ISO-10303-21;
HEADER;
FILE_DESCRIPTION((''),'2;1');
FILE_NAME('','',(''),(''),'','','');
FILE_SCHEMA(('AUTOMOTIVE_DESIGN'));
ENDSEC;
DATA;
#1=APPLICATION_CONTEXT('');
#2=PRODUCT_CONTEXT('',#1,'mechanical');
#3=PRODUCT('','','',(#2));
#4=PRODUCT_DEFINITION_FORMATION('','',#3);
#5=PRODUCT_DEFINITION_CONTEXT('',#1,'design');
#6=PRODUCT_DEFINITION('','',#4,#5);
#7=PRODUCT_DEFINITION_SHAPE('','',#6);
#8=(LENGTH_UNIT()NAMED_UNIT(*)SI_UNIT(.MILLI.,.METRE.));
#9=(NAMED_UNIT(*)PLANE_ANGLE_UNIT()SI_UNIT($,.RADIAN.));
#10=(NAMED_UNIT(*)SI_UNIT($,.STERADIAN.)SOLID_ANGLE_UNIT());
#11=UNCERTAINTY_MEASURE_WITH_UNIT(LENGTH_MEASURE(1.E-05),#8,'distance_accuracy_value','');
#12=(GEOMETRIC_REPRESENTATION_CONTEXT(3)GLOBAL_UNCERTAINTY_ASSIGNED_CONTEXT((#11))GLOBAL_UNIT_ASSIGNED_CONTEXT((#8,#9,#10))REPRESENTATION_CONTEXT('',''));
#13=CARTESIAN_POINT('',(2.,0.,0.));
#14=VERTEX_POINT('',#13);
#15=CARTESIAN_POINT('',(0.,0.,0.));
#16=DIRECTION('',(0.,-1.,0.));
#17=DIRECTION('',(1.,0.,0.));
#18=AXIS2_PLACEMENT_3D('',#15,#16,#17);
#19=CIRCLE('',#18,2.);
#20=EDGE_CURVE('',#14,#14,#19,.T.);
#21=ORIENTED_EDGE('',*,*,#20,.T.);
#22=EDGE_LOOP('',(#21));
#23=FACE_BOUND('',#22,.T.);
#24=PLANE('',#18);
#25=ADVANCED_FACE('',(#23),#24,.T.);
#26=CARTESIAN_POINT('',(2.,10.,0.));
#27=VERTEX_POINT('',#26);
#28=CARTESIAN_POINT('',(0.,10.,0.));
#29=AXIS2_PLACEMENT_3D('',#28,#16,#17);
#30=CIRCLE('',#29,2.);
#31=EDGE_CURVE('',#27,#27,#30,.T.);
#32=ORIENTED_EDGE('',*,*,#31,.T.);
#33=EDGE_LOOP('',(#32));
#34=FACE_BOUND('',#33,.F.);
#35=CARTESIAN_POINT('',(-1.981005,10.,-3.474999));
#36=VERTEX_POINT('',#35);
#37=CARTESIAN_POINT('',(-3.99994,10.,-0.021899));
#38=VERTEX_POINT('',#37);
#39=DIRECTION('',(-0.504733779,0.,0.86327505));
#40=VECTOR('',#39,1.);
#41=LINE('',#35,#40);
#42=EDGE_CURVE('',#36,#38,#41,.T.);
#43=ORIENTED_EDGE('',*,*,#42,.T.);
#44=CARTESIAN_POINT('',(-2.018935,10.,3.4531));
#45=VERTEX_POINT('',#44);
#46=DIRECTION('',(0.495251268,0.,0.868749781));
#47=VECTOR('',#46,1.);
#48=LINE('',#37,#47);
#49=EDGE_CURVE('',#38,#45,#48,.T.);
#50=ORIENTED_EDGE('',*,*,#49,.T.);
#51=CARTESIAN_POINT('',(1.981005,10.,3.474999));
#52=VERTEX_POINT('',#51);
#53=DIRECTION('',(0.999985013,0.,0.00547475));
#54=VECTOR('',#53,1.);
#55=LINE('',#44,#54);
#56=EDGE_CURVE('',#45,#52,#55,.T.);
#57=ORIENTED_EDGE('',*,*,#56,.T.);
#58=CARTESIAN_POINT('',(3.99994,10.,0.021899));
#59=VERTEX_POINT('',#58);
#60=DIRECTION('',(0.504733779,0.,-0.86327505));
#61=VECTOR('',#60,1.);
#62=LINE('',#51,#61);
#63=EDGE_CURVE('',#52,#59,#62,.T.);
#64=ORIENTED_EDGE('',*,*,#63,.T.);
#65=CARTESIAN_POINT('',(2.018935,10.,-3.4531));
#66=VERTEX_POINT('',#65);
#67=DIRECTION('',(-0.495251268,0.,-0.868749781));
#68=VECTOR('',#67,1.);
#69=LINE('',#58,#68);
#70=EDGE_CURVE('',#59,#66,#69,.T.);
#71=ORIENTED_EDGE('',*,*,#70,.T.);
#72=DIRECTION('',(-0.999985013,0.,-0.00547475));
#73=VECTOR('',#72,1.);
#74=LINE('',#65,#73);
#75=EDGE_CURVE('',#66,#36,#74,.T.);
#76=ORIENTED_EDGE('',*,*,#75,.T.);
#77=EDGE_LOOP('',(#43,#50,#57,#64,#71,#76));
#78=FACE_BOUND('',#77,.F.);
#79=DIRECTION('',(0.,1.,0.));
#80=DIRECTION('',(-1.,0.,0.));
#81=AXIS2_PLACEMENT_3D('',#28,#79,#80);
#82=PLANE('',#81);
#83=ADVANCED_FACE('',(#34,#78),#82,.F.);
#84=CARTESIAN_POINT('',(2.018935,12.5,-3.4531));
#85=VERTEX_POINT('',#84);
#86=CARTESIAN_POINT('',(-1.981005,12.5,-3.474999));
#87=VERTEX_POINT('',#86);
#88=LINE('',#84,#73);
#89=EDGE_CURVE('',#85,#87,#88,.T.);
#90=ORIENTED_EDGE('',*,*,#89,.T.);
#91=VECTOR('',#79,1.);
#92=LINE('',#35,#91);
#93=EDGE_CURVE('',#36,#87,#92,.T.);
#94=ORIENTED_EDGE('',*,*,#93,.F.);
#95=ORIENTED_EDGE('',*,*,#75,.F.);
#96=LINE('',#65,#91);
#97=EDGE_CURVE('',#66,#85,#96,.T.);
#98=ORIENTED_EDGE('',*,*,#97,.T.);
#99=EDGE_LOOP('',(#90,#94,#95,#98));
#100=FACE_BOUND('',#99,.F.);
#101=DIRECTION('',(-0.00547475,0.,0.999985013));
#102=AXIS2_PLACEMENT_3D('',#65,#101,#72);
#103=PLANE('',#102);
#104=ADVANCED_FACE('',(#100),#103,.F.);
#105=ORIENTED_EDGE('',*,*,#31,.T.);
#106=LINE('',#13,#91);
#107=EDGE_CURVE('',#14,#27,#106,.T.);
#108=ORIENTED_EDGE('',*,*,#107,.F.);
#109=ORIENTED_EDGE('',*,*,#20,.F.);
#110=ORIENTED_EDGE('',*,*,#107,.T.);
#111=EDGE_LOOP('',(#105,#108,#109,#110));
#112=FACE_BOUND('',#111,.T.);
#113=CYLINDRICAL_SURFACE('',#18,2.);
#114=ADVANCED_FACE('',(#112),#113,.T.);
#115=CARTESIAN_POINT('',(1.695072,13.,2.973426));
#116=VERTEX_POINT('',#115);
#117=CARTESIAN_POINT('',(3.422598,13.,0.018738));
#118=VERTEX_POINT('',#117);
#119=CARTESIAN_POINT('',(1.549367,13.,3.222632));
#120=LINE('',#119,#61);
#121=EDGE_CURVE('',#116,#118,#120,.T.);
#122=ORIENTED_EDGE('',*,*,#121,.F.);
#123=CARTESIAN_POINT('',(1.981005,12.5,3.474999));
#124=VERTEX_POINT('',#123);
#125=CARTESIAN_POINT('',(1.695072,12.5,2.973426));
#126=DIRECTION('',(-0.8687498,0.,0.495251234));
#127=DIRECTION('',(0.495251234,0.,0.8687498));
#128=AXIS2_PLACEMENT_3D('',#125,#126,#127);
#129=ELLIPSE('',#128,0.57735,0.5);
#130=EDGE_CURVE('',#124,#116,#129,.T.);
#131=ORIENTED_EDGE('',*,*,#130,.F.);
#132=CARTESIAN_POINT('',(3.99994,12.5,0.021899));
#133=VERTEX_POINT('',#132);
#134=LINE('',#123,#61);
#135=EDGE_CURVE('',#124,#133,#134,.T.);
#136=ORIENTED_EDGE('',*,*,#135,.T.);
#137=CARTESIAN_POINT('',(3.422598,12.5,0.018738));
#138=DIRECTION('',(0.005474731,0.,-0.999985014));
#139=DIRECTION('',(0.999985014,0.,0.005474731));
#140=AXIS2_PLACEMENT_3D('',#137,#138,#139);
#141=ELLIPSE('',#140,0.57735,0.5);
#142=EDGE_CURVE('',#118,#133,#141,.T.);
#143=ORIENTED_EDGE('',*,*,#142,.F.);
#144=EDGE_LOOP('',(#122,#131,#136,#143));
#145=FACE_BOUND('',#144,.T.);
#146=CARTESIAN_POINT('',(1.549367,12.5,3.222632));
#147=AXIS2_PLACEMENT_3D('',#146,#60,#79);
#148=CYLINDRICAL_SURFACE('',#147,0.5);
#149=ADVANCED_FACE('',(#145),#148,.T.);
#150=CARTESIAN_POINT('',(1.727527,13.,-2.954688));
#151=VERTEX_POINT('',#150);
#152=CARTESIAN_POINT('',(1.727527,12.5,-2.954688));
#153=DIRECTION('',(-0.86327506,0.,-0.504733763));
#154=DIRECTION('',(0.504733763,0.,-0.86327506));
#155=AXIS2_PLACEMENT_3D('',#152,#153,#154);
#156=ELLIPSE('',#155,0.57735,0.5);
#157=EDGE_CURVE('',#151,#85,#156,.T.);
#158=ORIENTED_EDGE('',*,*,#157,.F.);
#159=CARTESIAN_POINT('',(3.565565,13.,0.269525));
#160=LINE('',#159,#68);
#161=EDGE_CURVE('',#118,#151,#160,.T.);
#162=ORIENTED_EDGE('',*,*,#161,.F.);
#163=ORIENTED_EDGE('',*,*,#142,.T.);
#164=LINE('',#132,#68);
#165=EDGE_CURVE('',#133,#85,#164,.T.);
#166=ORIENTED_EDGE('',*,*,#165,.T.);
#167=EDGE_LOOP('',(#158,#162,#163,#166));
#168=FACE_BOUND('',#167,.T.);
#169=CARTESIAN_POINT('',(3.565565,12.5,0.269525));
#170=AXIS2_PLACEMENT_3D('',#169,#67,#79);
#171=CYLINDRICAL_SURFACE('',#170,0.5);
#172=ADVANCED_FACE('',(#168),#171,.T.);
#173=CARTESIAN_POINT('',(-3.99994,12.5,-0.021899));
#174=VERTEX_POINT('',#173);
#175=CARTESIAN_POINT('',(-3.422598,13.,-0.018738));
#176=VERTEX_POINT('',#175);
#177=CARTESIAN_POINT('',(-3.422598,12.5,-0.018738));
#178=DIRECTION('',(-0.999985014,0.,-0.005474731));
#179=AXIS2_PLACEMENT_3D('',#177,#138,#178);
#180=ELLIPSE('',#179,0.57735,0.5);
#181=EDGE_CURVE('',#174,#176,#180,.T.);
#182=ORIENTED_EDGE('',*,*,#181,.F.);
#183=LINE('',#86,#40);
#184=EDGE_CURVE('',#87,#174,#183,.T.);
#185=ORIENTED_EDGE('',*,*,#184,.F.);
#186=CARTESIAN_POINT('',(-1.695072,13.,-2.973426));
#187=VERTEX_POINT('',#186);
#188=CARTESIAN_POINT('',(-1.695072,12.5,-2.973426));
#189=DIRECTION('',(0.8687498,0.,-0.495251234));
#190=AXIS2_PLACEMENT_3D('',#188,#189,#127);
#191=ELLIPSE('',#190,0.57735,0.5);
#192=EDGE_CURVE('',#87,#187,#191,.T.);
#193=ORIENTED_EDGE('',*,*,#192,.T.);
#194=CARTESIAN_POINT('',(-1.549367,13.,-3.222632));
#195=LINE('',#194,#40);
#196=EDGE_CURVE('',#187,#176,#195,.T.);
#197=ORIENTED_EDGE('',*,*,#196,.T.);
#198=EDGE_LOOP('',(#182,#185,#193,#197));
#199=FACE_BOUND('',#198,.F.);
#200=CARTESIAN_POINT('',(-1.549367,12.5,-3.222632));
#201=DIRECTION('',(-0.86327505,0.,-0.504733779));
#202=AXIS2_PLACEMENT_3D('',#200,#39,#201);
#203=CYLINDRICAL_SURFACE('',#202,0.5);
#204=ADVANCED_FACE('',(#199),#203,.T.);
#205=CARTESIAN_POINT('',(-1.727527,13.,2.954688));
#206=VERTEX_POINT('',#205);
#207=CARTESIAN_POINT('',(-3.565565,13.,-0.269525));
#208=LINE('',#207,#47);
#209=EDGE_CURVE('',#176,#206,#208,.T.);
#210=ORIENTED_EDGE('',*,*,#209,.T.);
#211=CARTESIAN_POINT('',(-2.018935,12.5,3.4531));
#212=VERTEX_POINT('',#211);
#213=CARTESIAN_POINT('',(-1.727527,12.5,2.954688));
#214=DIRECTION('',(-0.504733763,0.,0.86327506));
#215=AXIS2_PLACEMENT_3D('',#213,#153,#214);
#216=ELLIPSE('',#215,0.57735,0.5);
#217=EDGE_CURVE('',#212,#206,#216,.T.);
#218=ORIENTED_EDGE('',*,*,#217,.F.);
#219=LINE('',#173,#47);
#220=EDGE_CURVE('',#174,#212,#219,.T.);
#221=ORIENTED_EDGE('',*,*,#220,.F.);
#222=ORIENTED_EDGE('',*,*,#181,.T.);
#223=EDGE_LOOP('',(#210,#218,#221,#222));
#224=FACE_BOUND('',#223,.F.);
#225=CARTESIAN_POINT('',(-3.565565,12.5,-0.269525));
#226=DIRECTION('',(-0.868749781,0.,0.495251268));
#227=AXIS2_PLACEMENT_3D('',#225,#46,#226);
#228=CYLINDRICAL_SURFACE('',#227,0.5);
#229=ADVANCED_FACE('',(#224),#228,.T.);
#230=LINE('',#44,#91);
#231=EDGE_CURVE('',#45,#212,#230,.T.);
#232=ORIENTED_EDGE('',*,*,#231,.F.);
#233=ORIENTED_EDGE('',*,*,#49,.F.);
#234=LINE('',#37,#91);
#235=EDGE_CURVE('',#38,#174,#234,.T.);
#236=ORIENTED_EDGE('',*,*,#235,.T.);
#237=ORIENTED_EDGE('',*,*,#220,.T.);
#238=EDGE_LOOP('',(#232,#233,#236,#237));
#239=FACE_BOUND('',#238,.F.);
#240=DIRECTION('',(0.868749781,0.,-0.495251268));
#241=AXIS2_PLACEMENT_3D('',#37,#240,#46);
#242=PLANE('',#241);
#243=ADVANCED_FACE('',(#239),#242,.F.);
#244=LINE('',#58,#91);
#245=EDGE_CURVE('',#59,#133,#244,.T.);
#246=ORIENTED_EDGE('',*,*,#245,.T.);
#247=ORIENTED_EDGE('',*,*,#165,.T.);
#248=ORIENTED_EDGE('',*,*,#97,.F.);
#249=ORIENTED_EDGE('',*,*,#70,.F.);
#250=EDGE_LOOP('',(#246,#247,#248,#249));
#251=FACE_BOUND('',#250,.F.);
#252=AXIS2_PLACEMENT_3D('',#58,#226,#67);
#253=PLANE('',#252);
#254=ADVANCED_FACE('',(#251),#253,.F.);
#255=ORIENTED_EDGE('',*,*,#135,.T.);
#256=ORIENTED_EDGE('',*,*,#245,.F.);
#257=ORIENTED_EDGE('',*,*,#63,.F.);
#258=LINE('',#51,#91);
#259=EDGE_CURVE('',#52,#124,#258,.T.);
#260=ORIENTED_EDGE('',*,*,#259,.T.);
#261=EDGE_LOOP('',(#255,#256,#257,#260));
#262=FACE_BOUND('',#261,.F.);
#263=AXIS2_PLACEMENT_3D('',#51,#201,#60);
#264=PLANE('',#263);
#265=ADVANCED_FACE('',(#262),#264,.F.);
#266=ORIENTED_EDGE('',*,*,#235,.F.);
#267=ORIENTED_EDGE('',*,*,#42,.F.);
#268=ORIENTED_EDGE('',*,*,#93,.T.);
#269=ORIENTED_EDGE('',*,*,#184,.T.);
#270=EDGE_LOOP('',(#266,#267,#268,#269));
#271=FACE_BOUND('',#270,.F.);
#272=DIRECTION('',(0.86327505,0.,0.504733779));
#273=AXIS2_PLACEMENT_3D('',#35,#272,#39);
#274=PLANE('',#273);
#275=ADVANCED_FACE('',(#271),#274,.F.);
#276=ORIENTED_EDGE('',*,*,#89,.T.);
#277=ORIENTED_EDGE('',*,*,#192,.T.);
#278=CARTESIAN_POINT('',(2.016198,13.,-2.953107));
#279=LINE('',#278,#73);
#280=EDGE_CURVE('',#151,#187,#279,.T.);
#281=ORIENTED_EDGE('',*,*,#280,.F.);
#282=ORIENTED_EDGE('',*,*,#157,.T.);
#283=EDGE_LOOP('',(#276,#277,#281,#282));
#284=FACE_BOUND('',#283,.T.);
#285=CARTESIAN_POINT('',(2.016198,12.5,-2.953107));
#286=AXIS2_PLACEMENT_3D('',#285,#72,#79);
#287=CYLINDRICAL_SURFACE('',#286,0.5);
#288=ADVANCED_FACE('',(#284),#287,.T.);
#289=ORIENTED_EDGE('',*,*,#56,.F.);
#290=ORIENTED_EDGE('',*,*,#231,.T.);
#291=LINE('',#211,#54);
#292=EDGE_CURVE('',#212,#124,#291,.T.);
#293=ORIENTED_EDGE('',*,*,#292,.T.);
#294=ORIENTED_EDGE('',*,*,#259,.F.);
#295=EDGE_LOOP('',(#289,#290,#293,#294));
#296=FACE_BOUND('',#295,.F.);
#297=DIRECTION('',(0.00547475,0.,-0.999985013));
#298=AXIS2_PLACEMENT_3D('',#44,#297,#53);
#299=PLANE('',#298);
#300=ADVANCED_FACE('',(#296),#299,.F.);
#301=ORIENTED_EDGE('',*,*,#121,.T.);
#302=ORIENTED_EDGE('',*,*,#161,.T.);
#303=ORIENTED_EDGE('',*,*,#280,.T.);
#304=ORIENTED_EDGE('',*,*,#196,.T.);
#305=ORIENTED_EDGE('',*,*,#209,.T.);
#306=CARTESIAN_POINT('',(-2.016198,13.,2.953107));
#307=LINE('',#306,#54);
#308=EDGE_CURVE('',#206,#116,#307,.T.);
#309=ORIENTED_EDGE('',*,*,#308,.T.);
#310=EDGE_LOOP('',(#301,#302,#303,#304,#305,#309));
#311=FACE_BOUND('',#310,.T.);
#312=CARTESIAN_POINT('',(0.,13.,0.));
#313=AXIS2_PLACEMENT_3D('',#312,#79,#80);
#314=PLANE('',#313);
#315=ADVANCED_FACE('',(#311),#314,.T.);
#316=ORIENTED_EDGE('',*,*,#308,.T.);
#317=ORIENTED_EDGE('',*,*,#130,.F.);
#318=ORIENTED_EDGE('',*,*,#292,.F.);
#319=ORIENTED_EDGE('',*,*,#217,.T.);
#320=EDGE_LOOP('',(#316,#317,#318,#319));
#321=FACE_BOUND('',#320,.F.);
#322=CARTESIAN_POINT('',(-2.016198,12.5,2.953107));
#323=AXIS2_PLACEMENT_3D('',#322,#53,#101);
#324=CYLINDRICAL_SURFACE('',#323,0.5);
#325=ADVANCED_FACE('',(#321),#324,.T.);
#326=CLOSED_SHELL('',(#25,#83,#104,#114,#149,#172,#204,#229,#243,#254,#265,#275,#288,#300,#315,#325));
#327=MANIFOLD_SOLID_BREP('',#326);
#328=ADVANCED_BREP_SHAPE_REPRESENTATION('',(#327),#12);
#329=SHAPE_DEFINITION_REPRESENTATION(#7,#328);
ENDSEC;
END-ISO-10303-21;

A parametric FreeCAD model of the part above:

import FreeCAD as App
import Part
import Sketcher
Q = App.Units.Quantity


def edges_at(feature, points):
    """Names of the edges that pass closest to the given points."""
    edges = feature.Shape.Edges
    near = lambda p: min(range(len(edges)), key=lambda i: edges[i].distToShape(Part.Vertex(*p))[0])
    return sorted({f"Edge{near(p) + 1}" for p in points})

doc = App.newDocument("Part")
body = doc.addObject("PartDesign::Body", "Body")

# Sketch on XZ plane
sketch1 = body.newObject("Sketcher::SketchObject", "Sketch")
sketch1.AttachmentSupport = (doc.getObject("XZ_Plane"), [""])
sketch1.MapMode = "FlatFace"
sketch1.addGeometry(Part.Circle(App.Vector(0, 0, 0), App.Vector(0, 0, 1), 2), False)
sketch1.addConstraint(Sketcher.Constraint("Coincident", 0, 3, -1, 1))
sketch1.addConstraint(Sketcher.Constraint("Diameter", 0, Q("4 mm")))
pad1 = body.newObject("PartDesign::Pad", "Pad")
pad1.Profile = sketch1
pad1.Length = 10
pad1.Reversed = True

# Sketch on XZ plane
sketch2 = body.newObject("Sketcher::SketchObject", "Sketch001")
sketch2.AttachmentSupport = (doc.getObject("XZ_Plane"), [""])
sketch2.MapMode = "FlatFace"
sketch2.AttachmentOffset = App.Placement(App.Vector(0, 0, -10), App.Rotation())
sketch2.addGeometry(Part.LineSegment(App.Vector(-4, 0, 0), App.Vector(-2, 3.5, 0)), False)
sketch2.addGeometry(Part.LineSegment(App.Vector(-2, 3.5, 0), App.Vector(2, 3.5, 0)), False)
sketch2.addGeometry(Part.LineSegment(App.Vector(2, 3.5, 0), App.Vector(4, 0, 0)), False)
sketch2.addGeometry(Part.LineSegment(App.Vector(4, 0, 0), App.Vector(2, -3.5, 0)), False)
sketch2.addGeometry(Part.LineSegment(App.Vector(2, -3.5, 0), App.Vector(-2, -3.5, 0)), False)
sketch2.addGeometry(Part.LineSegment(App.Vector(-2, -3.5, 0), App.Vector(-4, 0, 0)), False)
sketch2.addConstraint(Sketcher.Constraint("Coincident", 0, 2, 1, 1))
sketch2.addConstraint(Sketcher.Constraint("Coincident", 1, 2, 2, 1))
sketch2.addConstraint(Sketcher.Constraint("Coincident", 2, 2, 3, 1))
sketch2.addConstraint(Sketcher.Constraint("Coincident", 3, 2, 4, 1))
sketch2.addConstraint(Sketcher.Constraint("Coincident", 4, 2, 5, 1))
sketch2.addConstraint(Sketcher.Constraint("Coincident", 5, 2, 0, 1))
sketch2.addConstraint(Sketcher.Constraint("Symmetric", 0, 2, 3, 2, -1, 1))
sketch2.addConstraint(Sketcher.Constraint("Symmetric", 1, 2, 4, 2, -1, 1))
sketch2.addConstraint(Sketcher.Constraint("Symmetric", 2, 2, 5, 2, -1, 1))
sketch2.addConstraint(Sketcher.Constraint("Equal", 0, 1))
sketch2.addConstraint(Sketcher.Constraint("Equal", 1, 2))
sketch2.addConstraint(Sketcher.Constraint("Distance", 0, Q("4 mm")))
sketch2.addConstraint(Sketcher.Constraint("DistanceY", -1, 1, 1, 2, Q("3.474999 mm")))
sketch2.addConstraint(Sketcher.Constraint("DistanceY", 3, 2, 2, 2, Q("3.474999 mm")))
sketch2.addConstraint(Sketcher.Constraint("DistanceY", -1, 1, 0, 2, Q("3.4531 mm")))
pad2 = body.newObject("PartDesign::Pad", "Pad001")
pad2.Profile = sketch2
pad2.Length = 3
pad2.Reversed = True
doc.recompute()

fillet = body.newObject("PartDesign::Fillet", "Fillet")
fillet.Base = (pad2, edges_at(pad2, [
    (-2.99, 13, -1.748),
    (-3.009, 13, 1.716),
    (-0.019, 13, 3.464),
    (2.99, 13, 1.748),
    (3.009, 13, -1.716),
    (0.019, 13, -3.464),
]))
fillet.Radius = 0.5

doc.recompute()
